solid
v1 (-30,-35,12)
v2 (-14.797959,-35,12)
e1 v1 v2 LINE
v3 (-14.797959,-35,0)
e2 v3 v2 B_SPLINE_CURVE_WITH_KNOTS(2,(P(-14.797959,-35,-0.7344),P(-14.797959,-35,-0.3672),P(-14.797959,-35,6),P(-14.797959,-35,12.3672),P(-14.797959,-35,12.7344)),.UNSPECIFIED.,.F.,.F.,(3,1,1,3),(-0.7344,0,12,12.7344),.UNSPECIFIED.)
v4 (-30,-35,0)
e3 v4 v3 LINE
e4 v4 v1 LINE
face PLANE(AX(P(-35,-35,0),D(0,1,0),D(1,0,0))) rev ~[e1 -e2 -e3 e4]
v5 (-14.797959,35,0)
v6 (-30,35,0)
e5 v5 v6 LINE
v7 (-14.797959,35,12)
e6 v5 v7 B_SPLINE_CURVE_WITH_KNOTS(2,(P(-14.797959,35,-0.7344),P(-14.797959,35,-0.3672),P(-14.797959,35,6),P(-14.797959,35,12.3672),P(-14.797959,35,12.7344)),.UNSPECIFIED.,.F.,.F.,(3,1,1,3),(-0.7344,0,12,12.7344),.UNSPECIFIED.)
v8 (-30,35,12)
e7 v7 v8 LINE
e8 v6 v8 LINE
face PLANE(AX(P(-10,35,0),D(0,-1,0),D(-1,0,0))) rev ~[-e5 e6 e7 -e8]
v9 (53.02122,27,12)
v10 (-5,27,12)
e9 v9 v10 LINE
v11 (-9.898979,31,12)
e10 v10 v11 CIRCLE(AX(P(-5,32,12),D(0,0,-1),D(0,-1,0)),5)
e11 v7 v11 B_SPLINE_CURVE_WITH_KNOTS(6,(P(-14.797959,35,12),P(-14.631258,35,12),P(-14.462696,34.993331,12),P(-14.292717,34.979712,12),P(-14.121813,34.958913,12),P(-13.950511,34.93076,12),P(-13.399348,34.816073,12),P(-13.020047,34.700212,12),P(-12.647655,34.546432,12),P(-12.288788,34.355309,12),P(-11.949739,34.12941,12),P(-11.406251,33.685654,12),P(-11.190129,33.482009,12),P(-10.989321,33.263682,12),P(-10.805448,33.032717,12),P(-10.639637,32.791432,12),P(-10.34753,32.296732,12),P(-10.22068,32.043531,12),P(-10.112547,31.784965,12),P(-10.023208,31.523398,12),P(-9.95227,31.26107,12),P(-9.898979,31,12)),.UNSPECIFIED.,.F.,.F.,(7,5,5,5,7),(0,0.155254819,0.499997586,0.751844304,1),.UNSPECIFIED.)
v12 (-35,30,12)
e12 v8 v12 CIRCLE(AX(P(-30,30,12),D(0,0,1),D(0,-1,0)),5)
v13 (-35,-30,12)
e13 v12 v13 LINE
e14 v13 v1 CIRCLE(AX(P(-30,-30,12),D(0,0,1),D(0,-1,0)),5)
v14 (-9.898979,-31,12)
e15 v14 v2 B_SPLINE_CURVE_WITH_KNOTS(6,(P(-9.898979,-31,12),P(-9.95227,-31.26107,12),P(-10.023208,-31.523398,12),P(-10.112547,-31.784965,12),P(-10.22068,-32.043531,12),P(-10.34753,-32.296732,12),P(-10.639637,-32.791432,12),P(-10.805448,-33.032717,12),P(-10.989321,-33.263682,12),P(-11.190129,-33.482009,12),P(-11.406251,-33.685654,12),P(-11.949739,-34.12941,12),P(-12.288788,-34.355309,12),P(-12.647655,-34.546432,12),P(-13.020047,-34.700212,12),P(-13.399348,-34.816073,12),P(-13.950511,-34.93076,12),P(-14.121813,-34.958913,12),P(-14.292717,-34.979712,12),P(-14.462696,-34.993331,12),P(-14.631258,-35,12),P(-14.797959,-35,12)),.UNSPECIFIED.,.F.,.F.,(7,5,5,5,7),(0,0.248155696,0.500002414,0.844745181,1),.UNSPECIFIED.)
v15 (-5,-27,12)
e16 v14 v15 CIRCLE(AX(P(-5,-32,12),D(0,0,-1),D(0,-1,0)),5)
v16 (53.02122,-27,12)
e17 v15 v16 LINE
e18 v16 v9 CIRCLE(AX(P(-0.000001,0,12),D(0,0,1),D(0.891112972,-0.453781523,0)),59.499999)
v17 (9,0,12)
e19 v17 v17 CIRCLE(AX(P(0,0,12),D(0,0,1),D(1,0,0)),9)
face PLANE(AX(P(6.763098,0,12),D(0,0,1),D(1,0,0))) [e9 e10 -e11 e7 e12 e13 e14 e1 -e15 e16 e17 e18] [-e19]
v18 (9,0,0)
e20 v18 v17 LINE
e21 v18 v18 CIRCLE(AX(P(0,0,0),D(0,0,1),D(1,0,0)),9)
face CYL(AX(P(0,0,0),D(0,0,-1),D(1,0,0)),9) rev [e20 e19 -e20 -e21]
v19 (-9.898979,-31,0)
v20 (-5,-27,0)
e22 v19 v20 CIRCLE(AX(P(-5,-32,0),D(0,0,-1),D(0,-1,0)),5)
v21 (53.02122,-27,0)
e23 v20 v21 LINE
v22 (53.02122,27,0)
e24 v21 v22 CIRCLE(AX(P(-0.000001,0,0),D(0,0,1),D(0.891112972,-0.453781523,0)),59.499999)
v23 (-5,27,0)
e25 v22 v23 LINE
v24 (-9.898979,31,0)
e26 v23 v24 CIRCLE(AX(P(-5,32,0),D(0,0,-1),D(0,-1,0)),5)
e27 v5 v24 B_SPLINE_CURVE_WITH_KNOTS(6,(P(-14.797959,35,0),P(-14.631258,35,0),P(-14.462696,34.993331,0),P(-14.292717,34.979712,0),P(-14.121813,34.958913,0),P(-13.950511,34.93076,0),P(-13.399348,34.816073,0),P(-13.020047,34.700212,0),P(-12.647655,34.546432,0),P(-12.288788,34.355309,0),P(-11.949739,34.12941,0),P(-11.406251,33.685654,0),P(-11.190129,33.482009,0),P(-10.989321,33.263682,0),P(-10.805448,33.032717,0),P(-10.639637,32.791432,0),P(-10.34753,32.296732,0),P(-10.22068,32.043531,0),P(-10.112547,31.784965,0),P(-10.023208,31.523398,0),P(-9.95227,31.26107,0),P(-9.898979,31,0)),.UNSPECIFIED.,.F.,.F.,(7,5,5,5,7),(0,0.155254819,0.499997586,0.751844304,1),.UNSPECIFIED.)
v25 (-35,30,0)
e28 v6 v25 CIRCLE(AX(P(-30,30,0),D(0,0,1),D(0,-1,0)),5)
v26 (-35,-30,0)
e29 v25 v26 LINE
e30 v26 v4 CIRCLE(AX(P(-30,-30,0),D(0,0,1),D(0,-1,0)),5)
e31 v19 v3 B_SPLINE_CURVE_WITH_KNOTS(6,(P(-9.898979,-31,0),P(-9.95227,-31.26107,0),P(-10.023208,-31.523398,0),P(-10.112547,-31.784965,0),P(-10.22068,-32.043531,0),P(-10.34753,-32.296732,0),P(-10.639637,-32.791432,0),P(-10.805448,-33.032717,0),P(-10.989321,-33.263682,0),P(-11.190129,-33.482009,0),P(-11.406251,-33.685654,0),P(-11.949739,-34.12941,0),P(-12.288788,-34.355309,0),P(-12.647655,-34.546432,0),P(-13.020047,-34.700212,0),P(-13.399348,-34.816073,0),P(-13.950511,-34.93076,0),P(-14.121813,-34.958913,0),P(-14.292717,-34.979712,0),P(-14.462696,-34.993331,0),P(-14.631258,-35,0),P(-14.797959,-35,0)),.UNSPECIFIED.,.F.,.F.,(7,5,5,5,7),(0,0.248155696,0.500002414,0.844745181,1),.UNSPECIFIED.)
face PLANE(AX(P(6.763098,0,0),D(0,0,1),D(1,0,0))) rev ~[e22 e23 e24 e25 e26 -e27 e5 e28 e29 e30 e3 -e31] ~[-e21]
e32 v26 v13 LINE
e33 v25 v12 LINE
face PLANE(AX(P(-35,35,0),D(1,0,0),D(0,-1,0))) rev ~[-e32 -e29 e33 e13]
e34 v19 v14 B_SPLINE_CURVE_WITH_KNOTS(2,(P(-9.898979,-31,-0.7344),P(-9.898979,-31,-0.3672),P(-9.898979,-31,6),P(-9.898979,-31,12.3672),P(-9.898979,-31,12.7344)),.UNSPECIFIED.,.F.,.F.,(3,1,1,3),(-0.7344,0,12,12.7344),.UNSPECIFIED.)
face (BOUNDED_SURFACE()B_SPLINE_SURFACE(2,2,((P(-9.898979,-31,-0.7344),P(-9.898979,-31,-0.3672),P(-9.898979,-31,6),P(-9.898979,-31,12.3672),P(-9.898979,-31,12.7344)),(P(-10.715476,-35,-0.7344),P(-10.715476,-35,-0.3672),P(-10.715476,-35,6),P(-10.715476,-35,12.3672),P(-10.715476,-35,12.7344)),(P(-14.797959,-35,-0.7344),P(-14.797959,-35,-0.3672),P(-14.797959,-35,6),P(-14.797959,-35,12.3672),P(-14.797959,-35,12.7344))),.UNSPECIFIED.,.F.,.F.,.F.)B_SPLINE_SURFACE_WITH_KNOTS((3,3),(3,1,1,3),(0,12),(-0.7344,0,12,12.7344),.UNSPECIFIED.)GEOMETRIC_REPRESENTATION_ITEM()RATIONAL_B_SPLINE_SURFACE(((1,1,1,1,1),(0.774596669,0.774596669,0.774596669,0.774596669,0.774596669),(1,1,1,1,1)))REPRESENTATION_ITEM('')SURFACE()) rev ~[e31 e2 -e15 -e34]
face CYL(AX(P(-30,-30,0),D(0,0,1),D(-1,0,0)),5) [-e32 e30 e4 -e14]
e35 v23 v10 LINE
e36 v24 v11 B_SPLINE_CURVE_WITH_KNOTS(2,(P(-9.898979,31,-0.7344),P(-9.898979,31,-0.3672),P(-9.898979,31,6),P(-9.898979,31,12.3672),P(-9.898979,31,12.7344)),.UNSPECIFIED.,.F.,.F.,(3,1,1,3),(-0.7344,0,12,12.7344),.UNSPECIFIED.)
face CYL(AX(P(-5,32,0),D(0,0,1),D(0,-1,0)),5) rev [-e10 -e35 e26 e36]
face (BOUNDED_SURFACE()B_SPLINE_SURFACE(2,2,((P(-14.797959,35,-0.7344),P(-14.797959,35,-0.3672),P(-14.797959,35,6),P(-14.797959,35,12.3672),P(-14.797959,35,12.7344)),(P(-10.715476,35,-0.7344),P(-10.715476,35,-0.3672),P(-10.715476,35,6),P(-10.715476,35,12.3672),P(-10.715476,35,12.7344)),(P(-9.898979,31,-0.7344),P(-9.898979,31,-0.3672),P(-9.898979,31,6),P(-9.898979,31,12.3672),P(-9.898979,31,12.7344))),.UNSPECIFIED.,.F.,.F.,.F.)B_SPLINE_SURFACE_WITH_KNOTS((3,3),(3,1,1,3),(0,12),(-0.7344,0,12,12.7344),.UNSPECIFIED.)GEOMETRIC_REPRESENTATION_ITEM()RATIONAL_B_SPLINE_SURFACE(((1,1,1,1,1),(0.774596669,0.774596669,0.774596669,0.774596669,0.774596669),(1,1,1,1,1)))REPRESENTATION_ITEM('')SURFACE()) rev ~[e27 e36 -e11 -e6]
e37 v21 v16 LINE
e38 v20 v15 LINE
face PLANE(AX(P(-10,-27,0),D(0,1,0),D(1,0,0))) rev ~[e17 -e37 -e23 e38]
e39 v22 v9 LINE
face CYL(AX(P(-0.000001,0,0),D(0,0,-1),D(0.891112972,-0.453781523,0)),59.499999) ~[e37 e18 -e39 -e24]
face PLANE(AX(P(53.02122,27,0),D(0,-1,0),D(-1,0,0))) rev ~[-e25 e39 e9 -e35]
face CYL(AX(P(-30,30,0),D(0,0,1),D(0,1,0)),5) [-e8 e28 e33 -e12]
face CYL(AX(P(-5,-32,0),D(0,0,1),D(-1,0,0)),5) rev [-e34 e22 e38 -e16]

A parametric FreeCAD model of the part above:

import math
import FreeCAD as App
import Part
import Sketcher
from FreeCAD import Vector


def edges_at(feature, points):
    """Names of the edges that pass closest to the given points."""
    edges = feature.Shape.Edges
    near = lambda p: min(range(len(edges)), key=lambda i: edges[i].distToShape(Part.Vertex(*p))[0])
    return sorted({f"Edge{near(p) + 1}" for p in points})

doc = App.newDocument("Part")
params = doc.addObject("Spreadsheet::Sheet", "Params")
for row, (alias, value) in enumerate([
    ("sketch1_diameter", "18 mm"),
    ("sketch1_radius", "59.499999 mm"),
    ("sketch1_width", "25 mm"),
    ("sketch1_height", "70 mm"),
    ("sketch1_height2", "8 mm"),
    ("pad1_length", "12 mm"),
    ("fillet_radius", "5 mm"),
    ("fillet2_radius", "5 mm"),
    ("fillet3_radius", "5 mm"),
    ("fillet4_radius", "5 mm"),
    ("fillet5_radius", "5 mm"),
], start=1):
    params.set(f"A{row}", alias)
    params.set(f"B{row}", "=" + value)
    params.setAlias(f"B{row}", alias)

body = doc.addObject("PartDesign::Body", "Body")

sketch1 = body.newObject("Sketcher::SketchObject", "Sketch")
sketch1.AttachmentSupport = (doc.getObject("XY_Plane"), [""])
sketch1.MapMode = "FlatFace"
sketch1.addGeometry([
    Part.LineSegment(Vector(-10, 35, 0), Vector(-35, 35, 0)),
    Part.LineSegment(Vector(-35, 35, 0), Vector(-35, -35, 0)),
    Part.LineSegment(Vector(-35, -35, 0), Vector(-10, -35, 0)),
    Part.LineSegment(Vector(-10, -35, 0), Vector(-10, -27, 0)),
    Part.LineSegment(Vector(-10, -27, 0), Vector(53, -27, 0)),
    Part.ArcOfCircle(Part.Circle(Vector(0, 0, 0), Vector(0, 0, 1), 59), math.radians(-27), math.radians(27)),
    Part.LineSegment(Vector(53, 27, 0), Vector(-10, 27, 0)),
    Part.LineSegment(Vector(-10, 27, 0), Vector(-10, 35, 0)),
    Part.Circle(Vector(0, 0, 0), Vector(0, 0, 1), 9),
], False)
sketch1.addConstraint([
    Sketcher.Constraint("Coincident", 0, 2, 1, 1),
    Sketcher.Constraint("Coincident", 1, 2, 2, 1),
    Sketcher.Constraint("Coincident", 2, 2, 3, 1),
    Sketcher.Constraint("Coincident", 3, 2, 4, 1),
    Sketcher.Constraint("Coincident", 4, 2, 5, 1),
    Sketcher.Constraint("Coincident", 5, 2, 6, 1),
    Sketcher.Constraint("Coincident", 6, 2, 7, 1),
    Sketcher.Constraint("Coincident", 7, 2, 0, 1),
    Sketcher.Constraint("Horizontal", 0),
    Sketcher.Constraint("Vertical", 1),
    Sketcher.Constraint("Horizontal", 2),
    Sketcher.Constraint("Vertical", 3),
    Sketcher.Constraint("Horizontal", 4),
    Sketcher.Constraint("Horizontal", 6),
    Sketcher.Constraint("Vertical", 7),
    Sketcher.Constraint("Coincident", 5, 3, -1, 1),
    Sketcher.Constraint("Coincident", 8, 3, -1, 1),
    Sketcher.Constraint("Symmetric", 3, 2, 6, 2, -1),
    Sketcher.Constraint("Equal", 3, 7),
    Sketcher.Constraint("Diameter", 8, 18.0),
    Sketcher.Constraint("Radius", 5, 59.499999),
    Sketcher.Constraint("DistanceX", 0, 2, 0, 1, 25.0),
    Sketcher.Constraint("DistanceY", 1, 2, 1, 1, 70.0),
    Sketcher.Constraint("DistanceY", 3, 1, 3, 2, 8.0),
    Sketcher.Constraint("DistanceX", 0, 2, -1, 1, 35.0),
])
sketch1.setExpression("Constraints[19]", "Params.sketch1_diameter")
sketch1.setExpression("Constraints[20]", "Params.sketch1_radius")
sketch1.setExpression("Constraints[21]", "Params.sketch1_width")
sketch1.setExpression("Constraints[22]", "Params.sketch1_height")
sketch1.setExpression("Constraints[23]", "Params.sketch1_height2")
pad1 = body.newObject("PartDesign::Pad", "Pad")
pad1.Profile = sketch1
pad1.setExpression("Length", "Params.pad1_length")
doc.recompute()

fillet = body.newObject("PartDesign::Fillet", "Fillet")
fillet.Base = (pad1, edges_at(pad1, [(-10, -27, 6)]))
fillet.setExpression("Radius", "Params.fillet_radius")
doc.recompute()

fillet2 = body.newObject("PartDesign::Fillet", "Fillet001")
fillet2.Base = (fillet, edges_at(fillet, [(-10, 27, 6)]))
fillet2.setExpression("Radius", "Params.fillet2_radius")
doc.recompute()

fillet3 = body.newObject("PartDesign::Fillet", "Fillet002")
fillet3.Base = (fillet2, edges_at(fillet2, [(-10, -35, 6)]))
fillet3.setExpression("Radius", "Params.fillet3_radius")
doc.recompute()

fillet4 = body.newObject("PartDesign::Fillet", "Fillet003")
fillet4.Base = (fillet3, edges_at(fillet3, [(-10, 35, 6)]))
fillet4.setExpression("Radius", "Params.fillet4_radius")
doc.recompute()

fillet5 = body.newObject("PartDesign::Fillet", "Fillet004")
fillet5.Base = (fillet4, edges_at(fillet4, [(-35, -35, 6), (-35, 35, 6)]))
fillet5.setExpression("Radius", "Params.fillet5_radius")

doc.recompute()
